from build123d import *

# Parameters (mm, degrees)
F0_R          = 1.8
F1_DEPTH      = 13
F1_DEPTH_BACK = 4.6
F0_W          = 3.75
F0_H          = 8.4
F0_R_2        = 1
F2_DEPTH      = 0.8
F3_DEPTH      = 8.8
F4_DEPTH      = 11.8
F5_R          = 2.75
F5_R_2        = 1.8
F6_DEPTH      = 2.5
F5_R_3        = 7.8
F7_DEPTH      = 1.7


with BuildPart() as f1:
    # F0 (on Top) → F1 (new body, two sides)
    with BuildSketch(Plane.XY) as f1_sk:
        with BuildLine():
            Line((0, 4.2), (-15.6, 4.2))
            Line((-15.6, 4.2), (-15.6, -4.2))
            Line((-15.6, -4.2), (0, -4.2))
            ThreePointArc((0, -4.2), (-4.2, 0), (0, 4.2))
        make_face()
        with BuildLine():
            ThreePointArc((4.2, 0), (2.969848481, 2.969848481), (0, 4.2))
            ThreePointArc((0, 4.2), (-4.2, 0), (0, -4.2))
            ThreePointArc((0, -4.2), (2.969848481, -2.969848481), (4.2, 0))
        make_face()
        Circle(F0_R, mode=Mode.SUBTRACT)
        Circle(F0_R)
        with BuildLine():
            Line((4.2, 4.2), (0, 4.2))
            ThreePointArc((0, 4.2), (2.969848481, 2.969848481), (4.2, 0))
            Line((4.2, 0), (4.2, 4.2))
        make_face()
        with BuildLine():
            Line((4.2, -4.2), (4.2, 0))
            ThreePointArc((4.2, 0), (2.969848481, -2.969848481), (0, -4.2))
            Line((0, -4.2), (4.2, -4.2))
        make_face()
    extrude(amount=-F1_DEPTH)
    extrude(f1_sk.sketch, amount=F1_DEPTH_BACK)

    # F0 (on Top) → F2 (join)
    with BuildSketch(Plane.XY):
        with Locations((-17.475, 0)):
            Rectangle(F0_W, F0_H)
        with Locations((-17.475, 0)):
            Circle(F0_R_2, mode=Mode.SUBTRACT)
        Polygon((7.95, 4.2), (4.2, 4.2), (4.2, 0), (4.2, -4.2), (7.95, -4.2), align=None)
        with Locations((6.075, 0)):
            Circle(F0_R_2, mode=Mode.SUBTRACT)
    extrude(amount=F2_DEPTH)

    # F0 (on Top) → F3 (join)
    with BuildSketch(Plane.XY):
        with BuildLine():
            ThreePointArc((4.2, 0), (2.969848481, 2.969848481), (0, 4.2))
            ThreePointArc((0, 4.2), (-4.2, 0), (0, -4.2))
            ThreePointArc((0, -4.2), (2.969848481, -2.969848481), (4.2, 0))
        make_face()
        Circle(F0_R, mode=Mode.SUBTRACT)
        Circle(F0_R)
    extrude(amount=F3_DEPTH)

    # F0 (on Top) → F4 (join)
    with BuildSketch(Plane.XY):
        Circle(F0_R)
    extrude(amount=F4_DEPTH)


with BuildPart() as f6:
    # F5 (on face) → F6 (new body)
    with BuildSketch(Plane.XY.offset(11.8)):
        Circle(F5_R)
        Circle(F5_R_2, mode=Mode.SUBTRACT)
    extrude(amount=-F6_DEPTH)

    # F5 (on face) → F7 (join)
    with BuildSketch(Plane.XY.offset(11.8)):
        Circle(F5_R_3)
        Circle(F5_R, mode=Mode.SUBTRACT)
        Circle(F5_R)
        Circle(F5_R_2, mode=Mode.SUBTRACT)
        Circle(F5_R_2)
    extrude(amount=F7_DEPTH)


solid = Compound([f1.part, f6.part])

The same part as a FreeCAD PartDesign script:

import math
import FreeCAD as App
import Part
import Sketcher
Q = App.Units.Quantity


def add_polygon(sketch, points):
    """Adds a closed chain of lines whose ends are joined by coincident constraints."""
    first, n = sketch.GeometryCount, len(points)
    for a, b in zip(points, points[1:] + points[:1]):
        sketch.addGeometry(Part.LineSegment(App.Vector(*a, 0), App.Vector(*b, 0)), False)
    for i in range(n):
        sketch.addConstraint(Sketcher.Constraint("Coincident", first + i, 2, first + (i + 1) % n, 1))

doc = App.newDocument("Part")
body = doc.addObject("PartDesign::Body", "Body")

sketch1 = body.newObject("Sketcher::SketchObject", "Sketch")
sketch1.AttachmentSupport = (doc.getObject("XY_Plane"), [""])
sketch1.MapMode = "FlatFace"
add_polygon(sketch1, [(-16, 4), (-16, -4), (4, -4), (4, 4)])
sketch1.addConstraint([
    Sketcher.Constraint("Vertical", 0),
    Sketcher.Constraint("Horizontal", 1),
    Sketcher.Constraint("Vertical", 2),
    Sketcher.Constraint("Horizontal", 3),
    Sketcher.Constraint("DistanceX", 1, 1, 1, 2, Q("19.8 mm")),
    Sketcher.Constraint("DistanceY", 0, 2, 0, 1, Q("8.4 mm")),
    Sketcher.Constraint("DistanceX", 0, 2, -1, 1, Q("15.6 mm")),
    Sketcher.Constraint("DistanceY", 0, 2, -1, 1, Q("4.2 mm")),
])
pad1 = body.newObject("PartDesign::Pad", "Pad")
pad1.Profile = sketch1
pad1.Type = "TwoLengths"
pad1.Length = 13
pad1.Length2 = 4.6
pad1.Reversed = True

sketch2 = body.newObject("Sketcher::SketchObject", "Sketch001")
sketch2.AttachmentSupport = (doc.getObject("XY_Plane"), [""])
sketch2.MapMode = "FlatFace"
add_polygon(sketch2, [(-19.4, 4.2), (-19.4, -4.2), (-15.6, -4.2), (-15.6, 4.2)])
sketch2.addGeometry(Part.Circle(App.Vector(-17.5, 0, 0), App.Vector(0, 0, 1), 1), False)
add_polygon(sketch2, [(8, 4.2), (4.2, 4.2), (4.2, -4.2), (8, -4.2)])
sketch2.addGeometry(Part.Circle(App.Vector(6.1, 0, 0), App.Vector(0, 0, 1), 1), False)
sketch2.addConstraint([
    Sketcher.Constraint("Vertical", 0),
    Sketcher.Constraint("Horizontal", 1),
    Sketcher.Constraint("Vertical", 2),
    Sketcher.Constraint("Horizontal", 3),
    Sketcher.Constraint("Horizontal", 5),
    Sketcher.Constraint("Vertical", 6),
    Sketcher.Constraint("Horizontal", 7),
    Sketcher.Constraint("Vertical", 8),
    Sketcher.Constraint("Equal", 4, 9),
    Sketcher.Constraint("PointOnObject", 4, 3, -1),
    Sketcher.Constraint("PointOnObject", 9, 3, -1),
    Sketcher.Constraint("Horizontal", 3, 2, 5, 2),
    Sketcher.Constraint("Horizontal", 1, 2, 6, 2),
    Sketcher.Constraint("Equal", 3, 5),
    Sketcher.Constraint("Diameter", 4, Q("2 mm")),
    Sketcher.Constraint("DistanceY", 0, 2, 0, 1, Q("8.4 mm")),
    Sketcher.Constraint("DistanceX", 1, 1, 1, 2, Q("3.75 mm")),
    Sketcher.Constraint("DistanceY", 0, 2, -1, 1, Q("4.2 mm")),
    Sketcher.Constraint("DistanceX", 1, 2, -1, 1, Q("15.6 mm")),
    Sketcher.Constraint("DistanceX", -1, 1, 5, 2, Q("4.2 mm")),
    Sketcher.Constraint("DistanceX", 4, 3, 9, 3, Q("23.55 mm")),
    Sketcher.Constraint("DistanceX", 4, 3, -1, 1, Q("17.475 mm")),
])
pad2 = body.newObject("PartDesign::Pad", "Pad001")
pad2.Profile = sketch2
pad2.Length = 0.8

sketch3 = body.newObject("Sketcher::SketchObject", "Sketch002")
sketch3.AttachmentSupport = (doc.getObject("XY_Plane"), [""])
sketch3.MapMode = "FlatFace"
sketch3.addGeometry([
    Part.ArcOfCircle(Part.Circle(App.Vector(0, 0, 0), App.Vector(0, 0, 1), 4.2), math.radians(0), math.radians(90)),
    Part.ArcOfCircle(Part.Circle(App.Vector(0, 0, 0), App.Vector(0, 0, 1), 4.2), math.radians(90), math.radians(270)),
    Part.ArcOfCircle(Part.Circle(App.Vector(0, 0, 0), App.Vector(0, 0, 1), 4.2), math.radians(-90), math.radians(0)),
], False)
sketch3.addConstraint([
    Sketcher.Constraint("Tangent", 0, 2, 1, 1),
    Sketcher.Constraint("Tangent", 1, 2, 2, 1),
    Sketcher.Constraint("Tangent", 2, 2, 0, 1),
    Sketcher.Constraint("Coincident", 0, 3, -1, 1),
    Sketcher.Constraint("PointOnObject", 0, 2, -2),
    Sketcher.Constraint("PointOnObject", 1, 2, -2),
    Sketcher.Constraint("PointOnObject", 2, 2, -1),
    Sketcher.Constraint("Radius", 0, Q("4.2 mm")),
])
pad3 = body.newObject("PartDesign::Pad", "Pad002")
pad3.Profile = sketch3
pad3.Length = 8.8

sketch4 = body.newObject("Sketcher::SketchObject", "Sketch003")
sketch4.AttachmentSupport = (doc.getObject("XY_Plane"), [""])
sketch4.MapMode = "FlatFace"
sketch4.addGeometry(Part.Circle(App.Vector(0, 0, 0), App.Vector(0, 0, 1), 1.8), False)
sketch4.addConstraint([
    Sketcher.Constraint("Coincident", 0, 3, -1, 1),
    Sketcher.Constraint("Diameter", 0, Q("3.6 mm")),
])
pad4 = body.newObject("PartDesign::Pad", "Pad003")
pad4.Profile = sketch4
pad4.Length = 11.8
body2 = doc.addObject("PartDesign::Body", "Body001")

sketch5 = body2.newObject("Sketcher::SketchObject", "Sketch004")
sketch5.AttachmentSupport = (doc.getObject("XY_Plane001"), [""])
sketch5.MapMode = "FlatFace"
sketch5.AttachmentOffset = App.Placement(App.Vector(0, 0, 11.8), App.Rotation())
sketch5.addGeometry([
    Part.Circle(App.Vector(0, 0, 0), App.Vector(0, 0, 1), 2.8),
    Part.Circle(App.Vector(0, 0, 0), App.Vector(0, 0, 1), 1.8),
], False)
sketch5.addConstraint([
    Sketcher.Constraint("Coincident", 0, 3, -1, 1),
    Sketcher.Constraint("Coincident", 1, 3, -1, 1),
    Sketcher.Constraint("Diameter", 0, Q("5.5 mm")),
    Sketcher.Constraint("Diameter", 1, Q("3.6 mm")),
])
pad5 = body2.newObject("PartDesign::Pad", "Pad004")
pad5.Profile = sketch5
pad5.Length = 2.5
pad5.Reversed = True

sketch6 = body2.newObject("Sketcher::SketchObject", "Sketch005")
sketch6.AttachmentSupport = (doc.getObject("XY_Plane001"), [""])
sketch6.MapMode = "FlatFace"
sketch6.AttachmentOffset = App.Placement(App.Vector(0, 0, 11.8), App.Rotation())
sketch6.addGeometry(Part.Circle(App.Vector(0, 0, 0), App.Vector(0, 0, 1), 8), False)
sketch6.addConstraint([
    Sketcher.Constraint("Coincident", 0, 3, -1, 1),
    Sketcher.Constraint("Diameter", 0, Q("15.6 mm")),
])
pad6 = body2.newObject("PartDesign::Pad", "Pad005")
pad6.Profile = sketch6
pad6.Length = 1.7

doc.recompute()
